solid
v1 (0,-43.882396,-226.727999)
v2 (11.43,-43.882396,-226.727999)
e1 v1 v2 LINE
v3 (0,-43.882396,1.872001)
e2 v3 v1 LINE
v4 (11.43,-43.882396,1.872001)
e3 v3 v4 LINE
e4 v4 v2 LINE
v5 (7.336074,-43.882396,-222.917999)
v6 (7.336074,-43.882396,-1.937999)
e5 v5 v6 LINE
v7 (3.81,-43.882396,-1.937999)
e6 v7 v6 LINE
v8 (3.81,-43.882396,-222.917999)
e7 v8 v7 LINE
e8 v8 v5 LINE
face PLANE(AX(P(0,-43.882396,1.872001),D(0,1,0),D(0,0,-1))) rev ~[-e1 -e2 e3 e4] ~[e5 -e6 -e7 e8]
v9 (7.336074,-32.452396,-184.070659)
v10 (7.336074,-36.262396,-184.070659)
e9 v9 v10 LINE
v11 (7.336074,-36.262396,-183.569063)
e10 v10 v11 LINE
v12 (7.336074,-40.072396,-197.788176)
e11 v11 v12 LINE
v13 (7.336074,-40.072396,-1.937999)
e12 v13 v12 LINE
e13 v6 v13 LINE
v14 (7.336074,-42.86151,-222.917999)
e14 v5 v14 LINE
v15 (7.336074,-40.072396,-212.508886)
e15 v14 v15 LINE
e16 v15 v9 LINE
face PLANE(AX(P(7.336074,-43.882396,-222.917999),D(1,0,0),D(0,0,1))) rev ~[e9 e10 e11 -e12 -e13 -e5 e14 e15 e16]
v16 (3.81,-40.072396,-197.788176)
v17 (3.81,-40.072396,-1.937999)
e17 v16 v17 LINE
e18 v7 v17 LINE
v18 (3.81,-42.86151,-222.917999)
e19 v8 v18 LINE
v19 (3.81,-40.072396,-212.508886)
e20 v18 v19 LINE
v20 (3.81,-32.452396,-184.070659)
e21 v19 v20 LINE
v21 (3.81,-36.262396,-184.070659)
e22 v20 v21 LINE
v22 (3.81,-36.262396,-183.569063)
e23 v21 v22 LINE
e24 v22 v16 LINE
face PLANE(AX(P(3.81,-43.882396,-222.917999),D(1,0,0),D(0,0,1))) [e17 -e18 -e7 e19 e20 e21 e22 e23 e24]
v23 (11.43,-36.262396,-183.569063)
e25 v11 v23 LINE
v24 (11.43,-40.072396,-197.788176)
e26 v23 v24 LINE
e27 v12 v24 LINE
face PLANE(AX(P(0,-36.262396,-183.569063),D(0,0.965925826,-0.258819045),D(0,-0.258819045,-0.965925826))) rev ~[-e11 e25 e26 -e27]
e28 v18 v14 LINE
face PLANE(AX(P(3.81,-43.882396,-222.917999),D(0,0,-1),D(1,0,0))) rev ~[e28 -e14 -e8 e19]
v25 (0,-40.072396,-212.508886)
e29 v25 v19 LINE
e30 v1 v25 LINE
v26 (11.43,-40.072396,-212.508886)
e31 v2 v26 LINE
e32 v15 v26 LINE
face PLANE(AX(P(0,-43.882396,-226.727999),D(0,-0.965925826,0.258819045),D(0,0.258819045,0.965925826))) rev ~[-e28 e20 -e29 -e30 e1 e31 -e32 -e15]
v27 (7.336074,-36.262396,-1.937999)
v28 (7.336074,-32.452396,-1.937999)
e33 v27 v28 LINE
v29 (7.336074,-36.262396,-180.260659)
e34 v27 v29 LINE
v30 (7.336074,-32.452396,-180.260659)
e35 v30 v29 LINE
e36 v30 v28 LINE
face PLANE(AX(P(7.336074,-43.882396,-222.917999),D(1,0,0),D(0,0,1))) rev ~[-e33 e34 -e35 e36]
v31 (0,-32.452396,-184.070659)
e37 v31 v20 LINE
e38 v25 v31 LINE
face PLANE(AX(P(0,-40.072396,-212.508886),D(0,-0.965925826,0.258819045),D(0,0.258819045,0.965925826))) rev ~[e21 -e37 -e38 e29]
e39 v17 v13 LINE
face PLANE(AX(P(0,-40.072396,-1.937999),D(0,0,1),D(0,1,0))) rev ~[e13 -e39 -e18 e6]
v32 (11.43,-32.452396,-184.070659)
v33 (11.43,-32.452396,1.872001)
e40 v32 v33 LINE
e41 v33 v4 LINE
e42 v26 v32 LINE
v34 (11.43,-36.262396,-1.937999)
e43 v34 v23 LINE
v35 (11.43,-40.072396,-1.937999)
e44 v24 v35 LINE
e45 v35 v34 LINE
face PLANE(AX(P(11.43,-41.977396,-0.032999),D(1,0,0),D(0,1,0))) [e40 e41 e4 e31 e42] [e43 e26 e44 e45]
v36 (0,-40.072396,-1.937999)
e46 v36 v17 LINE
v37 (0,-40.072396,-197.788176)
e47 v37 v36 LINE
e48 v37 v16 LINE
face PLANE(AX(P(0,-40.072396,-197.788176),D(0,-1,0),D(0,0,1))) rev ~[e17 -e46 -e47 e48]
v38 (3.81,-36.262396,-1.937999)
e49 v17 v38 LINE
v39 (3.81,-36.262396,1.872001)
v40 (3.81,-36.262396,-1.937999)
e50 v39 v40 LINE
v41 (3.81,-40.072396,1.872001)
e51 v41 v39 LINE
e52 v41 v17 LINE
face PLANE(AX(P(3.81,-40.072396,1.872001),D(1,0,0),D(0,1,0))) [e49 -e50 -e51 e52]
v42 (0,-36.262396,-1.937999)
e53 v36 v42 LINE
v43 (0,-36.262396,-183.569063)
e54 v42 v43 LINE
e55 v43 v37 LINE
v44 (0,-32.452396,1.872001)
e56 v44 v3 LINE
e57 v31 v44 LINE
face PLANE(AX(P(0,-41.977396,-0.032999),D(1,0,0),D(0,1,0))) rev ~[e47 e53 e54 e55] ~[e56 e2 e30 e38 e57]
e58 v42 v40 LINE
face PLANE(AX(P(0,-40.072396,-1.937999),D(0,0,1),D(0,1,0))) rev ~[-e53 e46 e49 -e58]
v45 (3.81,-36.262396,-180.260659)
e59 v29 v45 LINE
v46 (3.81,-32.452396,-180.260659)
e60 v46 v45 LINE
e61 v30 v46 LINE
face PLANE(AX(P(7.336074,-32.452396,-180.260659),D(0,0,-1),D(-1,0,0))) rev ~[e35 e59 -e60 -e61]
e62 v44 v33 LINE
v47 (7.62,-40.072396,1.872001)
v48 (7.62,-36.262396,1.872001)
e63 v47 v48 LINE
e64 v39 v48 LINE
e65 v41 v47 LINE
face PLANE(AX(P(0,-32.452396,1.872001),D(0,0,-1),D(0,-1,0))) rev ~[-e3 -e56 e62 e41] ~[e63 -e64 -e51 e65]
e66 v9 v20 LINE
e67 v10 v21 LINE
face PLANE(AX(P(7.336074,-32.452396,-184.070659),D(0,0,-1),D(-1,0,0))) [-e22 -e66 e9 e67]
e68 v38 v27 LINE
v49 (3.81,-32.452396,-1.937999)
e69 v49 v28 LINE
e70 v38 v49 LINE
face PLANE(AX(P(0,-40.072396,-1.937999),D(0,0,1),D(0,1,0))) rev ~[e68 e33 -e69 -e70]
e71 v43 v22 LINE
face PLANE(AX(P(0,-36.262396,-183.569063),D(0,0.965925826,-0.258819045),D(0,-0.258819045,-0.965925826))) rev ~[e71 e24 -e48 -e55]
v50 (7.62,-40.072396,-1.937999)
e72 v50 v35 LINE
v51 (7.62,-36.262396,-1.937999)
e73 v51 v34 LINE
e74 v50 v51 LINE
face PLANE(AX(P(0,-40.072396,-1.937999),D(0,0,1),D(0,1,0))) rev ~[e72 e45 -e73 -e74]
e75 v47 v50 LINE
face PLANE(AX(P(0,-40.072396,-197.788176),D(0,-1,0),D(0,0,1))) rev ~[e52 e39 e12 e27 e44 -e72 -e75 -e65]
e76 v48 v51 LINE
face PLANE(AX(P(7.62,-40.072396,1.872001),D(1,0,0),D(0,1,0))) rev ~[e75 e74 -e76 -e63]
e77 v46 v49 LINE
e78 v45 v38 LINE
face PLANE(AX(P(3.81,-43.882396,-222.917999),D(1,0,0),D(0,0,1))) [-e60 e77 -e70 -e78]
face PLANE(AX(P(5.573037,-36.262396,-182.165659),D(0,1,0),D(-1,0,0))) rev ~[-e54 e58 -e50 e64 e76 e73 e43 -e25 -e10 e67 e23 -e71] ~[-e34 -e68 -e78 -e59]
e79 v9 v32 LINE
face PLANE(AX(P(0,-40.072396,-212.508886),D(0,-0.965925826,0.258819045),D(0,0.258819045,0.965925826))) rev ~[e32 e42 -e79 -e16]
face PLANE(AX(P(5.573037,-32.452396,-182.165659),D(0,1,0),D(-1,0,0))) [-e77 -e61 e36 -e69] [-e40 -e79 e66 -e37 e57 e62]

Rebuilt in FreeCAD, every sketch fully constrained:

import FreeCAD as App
import Part
import Sketcher
from FreeCAD import Vector
Q = App.Units.Quantity


def add_polygon(sketch, points):
    """Adds a closed chain of lines whose ends are joined by coincident constraints."""
    first, n = sketch.GeometryCount, len(points)
    for a, b in zip(points, points[1:] + points[:1]):
        sketch.addGeometry(Part.LineSegment(App.Vector(*a, 0), App.Vector(*b, 0)), False)
    for i in range(n):
        sketch.addConstraint(Sketcher.Constraint("Coincident", first + i, 2, first + (i + 1) % n, 1))

doc = App.newDocument("Part")
body = doc.addObject("PartDesign::Body", "Body")

sketch1 = body.newObject("Sketcher::SketchObject", "Sketch")
sketch1.AttachmentSupport = (doc.getObject("YZ_Plane"), [""])
sketch1.MapMode = "FlatFace"
add_polygon(sketch1, [(-40.1, -212.5), (-32.5, -184.1), (-32.5, 1.9), (-43.9, 1.9), (-43.9, -226.7)])
add_polygon(sketch1, [(-36.3, -1.9), (-36.3, -183.6), (-40.1, -197.8), (-40.1, -1.9)])
sketch1.addConstraint(Sketcher.Constraint("Vertical", 1))
sketch1.addConstraint(Sketcher.Constraint("Horizontal", 2))
sketch1.addConstraint(Sketcher.Constraint("Vertical", 3))
sketch1.addConstraint(Sketcher.Constraint("Vertical", 5))
sketch1.addConstraint(Sketcher.Constraint("Vertical", 7))
sketch1.addConstraint(Sketcher.Constraint("Horizontal", 8))
sketch1.addConstraint(Sketcher.Constraint("Parallel", 0, 4))
sketch1.addConstraint(Sketcher.Constraint("Parallel", 4, 6))
sketch1.addConstraint(Sketcher.Constraint("Vertical", 4, 2, 6, 2))
sketch1.addConstraint(Sketcher.Constraint("Equal", 4, 6))
sketch1.addConstraint(Sketcher.Constraint("DistanceY", 3, 2, 3, 1, Q("9 in")))
sketch1.addConstraint(Sketcher.Constraint("Angle", 0, Q("75 deg")))
sketch1.addConstraint(Sketcher.Constraint("DistanceX", 2, 2, 2, 1, Q("0.45 in")))
sketch1.addConstraint(Sketcher.Constraint("DistanceX", 8, 1, 8, 2, Q("0.15 in")))
sketch1.addConstraint(Sketcher.Constraint("DistanceY", 7, 2, 2, 2, Q("0.15 in")))
sketch1.addConstraint(Sketcher.Constraint("DistanceY", -1, 1, 1, 2, Q("1.872001 mm")))
sketch1.addConstraint(Sketcher.Constraint("DistanceY", 5, 2, 5, 1, Q("181.631063 mm")))
sketch1.addConstraint(Sketcher.Constraint("DistanceX", 0, 2, -1, 1, Q("32.452396 mm")))
pad1 = body.newObject("PartDesign::Pad", "Pad")
pad1.Profile = sketch1
pad1.Length = Q("0.45 in")

sketch2 = body.newObject("Sketcher::SketchObject", "Sketch001")
sketch2.AttachmentSupport = (doc.getObject("XZ_Plane"), [""])
sketch2.MapMode = "FlatFace"
sketch2.AttachmentOffset = App.Placement(Vector(0, 0, 43.882396), App.Rotation())
add_polygon(sketch2, [(3.8, -1.9), (3.8, -222.9), (7.3, -222.9), (7.3, -1.9)])
sketch2.addConstraint(Sketcher.Constraint("Vertical", 0))
sketch2.addConstraint(Sketcher.Constraint("Horizontal", 1))
sketch2.addConstraint(Sketcher.Constraint("Vertical", 2))
sketch2.addConstraint(Sketcher.Constraint("Horizontal", 3))
sketch2.addConstraint(Sketcher.Constraint("DistanceY", 0, 2, 0, 1, Q("8.7 in")))
sketch2.addConstraint(Sketcher.Constraint("DistanceX", -1, 1, 0, 2, Q("0.15 in")))
sketch2.addConstraint(Sketcher.Constraint("DistanceY", 0, 2, -1, 1, Q("222.917999 mm")))
sketch2.addConstraint(Sketcher.Constraint("DistanceX", 1, 1, 1, 2, Q("3.526074 mm")))
pocket1 = body.newObject("PartDesign::Pocket", "Pocket")
pocket1.Profile = sketch2
pocket1.Length = Q("1 in")

sketch3 = body.newObject("Sketcher::SketchObject", "Sketch002")
sketch3.AttachmentSupport = (doc.getObject("XZ_Plane"), [""])
sketch3.MapMode = "FlatFace"
sketch3.AttachmentOffset = App.Placement(Vector(0, 0, 32.452396), App.Rotation())
add_polygon(sketch3, [(7.3, -180.3), (7.3, -184.1), (3.8, -184.1), (3.8, -180.3)])
sketch3.addConstraint(Sketcher.Constraint("Vertical", 0))
sketch3.addConstraint(Sketcher.Constraint("Horizontal", 1))
sketch3.addConstraint(Sketcher.Constraint("Vertical", 2))
sketch3.addConstraint(Sketcher.Constraint("Horizontal", 3))
sketch3.addConstraint(Sketcher.Constraint("DistanceY", 0, 2, 0, 1, Q("0.15 in")))
sketch3.addConstraint(Sketcher.Constraint("DistanceX", -1, 1, 1, 2, Q("0.15 in")))
sketch3.addConstraint(Sketcher.Constraint("DistanceX", 1, 2, 1, 1, Q("3.526074 mm")))
sketch3.addConstraint(Sketcher.Constraint("DistanceY", 0, 2, -1, 1, Q("184.070659 mm")))
pad2 = body.newObject("PartDesign::Pad", "Pad001")
pad2.Profile = sketch3
pad2.Length = Q("0.15 in")

sketch4 = body.newObject("Sketcher::SketchObject", "Sketch003")
sketch4.AttachmentSupport = (doc.getObject("XY_Plane"), [""])
sketch4.MapMode = "FlatFace"
sketch4.AttachmentOffset = App.Placement(Vector(0, 0, 1.872001), App.Rotation())
add_polygon(sketch4, [(3.8, -36.3), (3.8, -40.1), (7.6, -40.1), (7.6, -36.3)])
sketch4.addConstraint(Sketcher.Constraint("Vertical", 0))
sketch4.addConstraint(Sketcher.Constraint("Horizontal", 1))
sketch4.addConstraint(Sketcher.Constraint("Vertical", 2))
sketch4.addConstraint(Sketcher.Constraint("Horizontal", 3))
sketch4.addConstraint(Sketcher.Constraint("Equal", 3, 0))
sketch4.addConstraint(Sketcher.Constraint("DistanceX", 1, 1, 1, 2, Q("0.15 in")))
sketch4.addConstraint(Sketcher.Constraint("DistanceX", -1, 1, 1, 2, Q("0.3 in")))
sketch4.addConstraint(Sketcher.Constraint("DistanceY", 0, 2, -1, 1, Q("40.072396 mm")))
pocket2 = body.newObject("PartDesign::Pocket", "Pocket001")
pocket2.Profile = sketch4
pocket2.Length = Q("1 in")

doc.recompute()
